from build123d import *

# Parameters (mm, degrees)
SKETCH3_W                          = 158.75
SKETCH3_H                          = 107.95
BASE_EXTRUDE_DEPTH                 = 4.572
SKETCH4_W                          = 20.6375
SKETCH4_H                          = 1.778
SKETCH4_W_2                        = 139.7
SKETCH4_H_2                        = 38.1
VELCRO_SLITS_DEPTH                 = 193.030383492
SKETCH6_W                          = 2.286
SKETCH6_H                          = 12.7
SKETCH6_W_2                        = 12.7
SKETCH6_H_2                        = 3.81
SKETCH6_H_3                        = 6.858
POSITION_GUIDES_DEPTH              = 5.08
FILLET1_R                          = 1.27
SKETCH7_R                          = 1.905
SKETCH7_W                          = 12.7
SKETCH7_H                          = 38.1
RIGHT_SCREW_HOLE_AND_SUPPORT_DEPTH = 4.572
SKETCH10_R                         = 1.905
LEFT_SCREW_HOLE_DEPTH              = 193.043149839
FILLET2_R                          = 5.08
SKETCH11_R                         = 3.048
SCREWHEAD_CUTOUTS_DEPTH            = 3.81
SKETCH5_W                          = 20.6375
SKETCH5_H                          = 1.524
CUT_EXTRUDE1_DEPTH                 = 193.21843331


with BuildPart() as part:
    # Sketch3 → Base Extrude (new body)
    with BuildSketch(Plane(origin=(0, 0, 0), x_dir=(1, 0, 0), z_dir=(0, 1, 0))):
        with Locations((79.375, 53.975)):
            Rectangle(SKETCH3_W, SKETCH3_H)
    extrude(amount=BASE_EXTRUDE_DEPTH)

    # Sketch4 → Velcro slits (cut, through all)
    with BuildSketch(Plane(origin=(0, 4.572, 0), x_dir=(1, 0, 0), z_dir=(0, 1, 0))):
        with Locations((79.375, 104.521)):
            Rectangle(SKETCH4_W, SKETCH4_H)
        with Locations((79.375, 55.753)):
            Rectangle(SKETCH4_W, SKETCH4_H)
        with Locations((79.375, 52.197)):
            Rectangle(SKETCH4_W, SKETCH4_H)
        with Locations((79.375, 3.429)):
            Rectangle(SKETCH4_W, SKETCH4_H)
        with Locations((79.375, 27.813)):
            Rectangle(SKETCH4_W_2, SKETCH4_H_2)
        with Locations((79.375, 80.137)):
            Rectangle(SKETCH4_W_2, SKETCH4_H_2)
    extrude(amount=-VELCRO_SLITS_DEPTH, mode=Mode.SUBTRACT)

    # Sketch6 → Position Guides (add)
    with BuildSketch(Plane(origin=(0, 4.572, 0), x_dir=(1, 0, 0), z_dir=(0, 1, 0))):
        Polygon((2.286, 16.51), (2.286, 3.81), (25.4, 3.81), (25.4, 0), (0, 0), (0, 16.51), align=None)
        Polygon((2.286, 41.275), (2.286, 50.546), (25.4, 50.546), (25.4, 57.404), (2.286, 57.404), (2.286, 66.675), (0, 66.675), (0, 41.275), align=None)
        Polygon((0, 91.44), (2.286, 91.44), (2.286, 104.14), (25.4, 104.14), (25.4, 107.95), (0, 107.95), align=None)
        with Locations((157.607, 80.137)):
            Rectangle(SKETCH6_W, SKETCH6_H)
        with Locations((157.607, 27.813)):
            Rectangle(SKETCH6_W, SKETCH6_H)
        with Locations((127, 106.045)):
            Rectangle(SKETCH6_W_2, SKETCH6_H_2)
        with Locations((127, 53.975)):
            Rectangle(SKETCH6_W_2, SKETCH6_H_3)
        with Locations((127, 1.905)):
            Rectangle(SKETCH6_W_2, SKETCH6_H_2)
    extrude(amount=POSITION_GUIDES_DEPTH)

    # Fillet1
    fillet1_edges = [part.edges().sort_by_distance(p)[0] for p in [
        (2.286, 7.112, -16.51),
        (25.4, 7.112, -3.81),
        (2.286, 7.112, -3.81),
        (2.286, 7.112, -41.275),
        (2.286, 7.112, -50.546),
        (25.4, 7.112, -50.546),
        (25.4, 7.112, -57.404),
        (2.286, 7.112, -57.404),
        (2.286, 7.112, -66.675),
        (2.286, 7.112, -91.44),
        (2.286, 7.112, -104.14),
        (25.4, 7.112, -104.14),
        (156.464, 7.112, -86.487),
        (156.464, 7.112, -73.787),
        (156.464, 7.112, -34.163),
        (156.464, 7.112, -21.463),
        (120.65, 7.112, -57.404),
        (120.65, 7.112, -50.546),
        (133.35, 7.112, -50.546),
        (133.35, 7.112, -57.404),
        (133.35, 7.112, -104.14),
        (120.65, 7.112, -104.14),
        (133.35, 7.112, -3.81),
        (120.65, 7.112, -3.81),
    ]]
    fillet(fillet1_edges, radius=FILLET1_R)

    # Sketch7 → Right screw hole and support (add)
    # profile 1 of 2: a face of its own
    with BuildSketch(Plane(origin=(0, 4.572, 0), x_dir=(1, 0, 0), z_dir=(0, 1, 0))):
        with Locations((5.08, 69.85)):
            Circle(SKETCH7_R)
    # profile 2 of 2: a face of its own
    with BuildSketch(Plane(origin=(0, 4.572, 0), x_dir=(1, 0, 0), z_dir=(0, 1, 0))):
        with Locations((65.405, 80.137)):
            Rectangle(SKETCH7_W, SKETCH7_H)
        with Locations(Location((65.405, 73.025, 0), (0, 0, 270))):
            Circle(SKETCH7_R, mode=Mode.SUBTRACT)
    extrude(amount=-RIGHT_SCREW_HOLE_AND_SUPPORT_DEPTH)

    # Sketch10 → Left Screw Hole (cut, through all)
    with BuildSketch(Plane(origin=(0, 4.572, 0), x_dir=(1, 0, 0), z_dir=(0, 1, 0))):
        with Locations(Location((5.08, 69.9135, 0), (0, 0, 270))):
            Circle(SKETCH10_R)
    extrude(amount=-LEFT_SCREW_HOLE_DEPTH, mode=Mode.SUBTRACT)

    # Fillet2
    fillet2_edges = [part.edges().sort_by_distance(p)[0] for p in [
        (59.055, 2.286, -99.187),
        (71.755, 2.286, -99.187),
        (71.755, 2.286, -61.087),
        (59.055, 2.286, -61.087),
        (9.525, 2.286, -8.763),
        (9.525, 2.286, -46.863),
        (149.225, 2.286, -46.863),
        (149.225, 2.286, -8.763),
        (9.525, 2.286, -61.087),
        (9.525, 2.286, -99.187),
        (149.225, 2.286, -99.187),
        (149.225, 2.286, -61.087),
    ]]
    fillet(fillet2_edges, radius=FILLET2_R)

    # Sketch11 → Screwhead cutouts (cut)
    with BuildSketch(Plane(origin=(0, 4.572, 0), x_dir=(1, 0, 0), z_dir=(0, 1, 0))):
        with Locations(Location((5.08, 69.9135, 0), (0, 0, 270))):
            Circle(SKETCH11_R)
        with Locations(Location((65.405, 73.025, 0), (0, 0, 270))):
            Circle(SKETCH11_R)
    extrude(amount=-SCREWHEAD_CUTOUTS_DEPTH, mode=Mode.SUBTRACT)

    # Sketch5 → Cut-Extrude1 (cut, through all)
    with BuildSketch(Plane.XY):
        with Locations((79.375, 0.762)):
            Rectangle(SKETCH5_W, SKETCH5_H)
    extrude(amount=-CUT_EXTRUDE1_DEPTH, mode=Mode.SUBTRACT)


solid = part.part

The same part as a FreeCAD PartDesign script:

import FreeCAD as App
import Part
import Sketcher

V = App.Vector
Q = App.Units.Quantity


def edges_at(feature, points):
    """Names of the edges that pass closest to the given points."""
    edges = feature.Shape.Edges
    near = lambda p: min(range(len(edges)), key=lambda i: edges[i].distToShape(Part.Vertex(*p))[0])
    return sorted({f"Edge{near(p) + 1}" for p in points})

doc = App.newDocument("Part")
body = doc.addObject("PartDesign::Body", "Body")

sketch1 = doc.addObject("Sketcher::SketchObject", "Sketch")
body.addObject(sketch1)
sketch1.AttachmentSupport = (doc.XZ_Plane, [""])
sketch1.MapMode = "FlatFace"
sketch1.addGeometry([
    Part.LineSegment(V(0, -108, 0), V(0, 0, 0)),
    Part.LineSegment(V(0, 0, 0), V(159, 0, 0)),
    Part.LineSegment(V(159, 0, 0), V(159, -108, 0)),
    Part.LineSegment(V(159, -108, 0), V(0, -108, 0)),
], False)
sketch1.addConstraint([
    Sketcher.Constraint("Coincident", 0, 2, 1, 1),
    Sketcher.Constraint("Coincident", 1, 2, 2, 1),
    Sketcher.Constraint("Coincident", 2, 2, 3, 1),
    Sketcher.Constraint("Coincident", 3, 2, 0, 1),
    Sketcher.Constraint("Vertical", 0),
    Sketcher.Constraint("Horizontal", 1),
    Sketcher.Constraint("Vertical", 2),
    Sketcher.Constraint("Horizontal", 3),
    Sketcher.Constraint("Coincident", 0, 2, -1, 1),
    Sketcher.Constraint("DistanceX", 1, 1, 1, 2, Q("6.25 in")),
    Sketcher.Constraint("DistanceY", 0, 1, 0, 2, Q("4.25 in")),
])
pad1 = doc.addObject("PartDesign::Pad", "Pad")
body.addObject(pad1)
pad1.Profile = sketch1
pad1.Length = Q("0.18 in")
pad1.Reversed = True

sketch2 = doc.addObject("Sketcher::SketchObject", "Sketch001")
body.addObject(sketch2)
sketch2.AttachmentSupport = (doc.XZ_Plane, [""])
sketch2.MapMode = "FlatFace"
sketch2.AttachmentOffset = App.Placement(V(0, 0, -0.18 * 25.4), App.Rotation())
sketch2.addGeometry([
    Part.LineSegment(V(69.1, -105.4, 0), V(69.1, -103.6, 0)),
    Part.LineSegment(V(69.1, -103.6, 0), V(89.7, -103.6, 0)),
    Part.LineSegment(V(89.7, -103.6, 0), V(89.7, -105.4, 0)),
    Part.LineSegment(V(89.7, -105.4, 0), V(69.1, -105.4, 0)),
    Part.LineSegment(V(69.1, -56.6, 0), V(69.1, -54.9, 0)),
    Part.LineSegment(V(69.1, -54.9, 0), V(89.7, -54.9, 0)),
    Part.LineSegment(V(89.7, -54.9, 0), V(89.7, -56.6, 0)),
    Part.LineSegment(V(89.7, -56.6, 0), V(69.1, -56.6, 0)),
    Part.LineSegment(V(69.1, -53.1, 0), V(69.1, -51.3, 0)),
    Part.LineSegment(V(69.1, -51.3, 0), V(89.7, -51.3, 0)),
    Part.LineSegment(V(89.7, -51.3, 0), V(89.7, -53.1, 0)),
    Part.LineSegment(V(89.7, -53.1, 0), V(69.1, -53.1, 0)),
    Part.LineSegment(V(69.1, -4.3, 0), V(69.1, -2.5, 0)),
    Part.LineSegment(V(69.1, -2.5, 0), V(89.7, -2.5, 0)),
    Part.LineSegment(V(89.7, -2.5, 0), V(89.7, -4.3, 0)),
    Part.LineSegment(V(89.7, -4.3, 0), V(69.1, -4.3, 0)),
    Part.LineSegment(V(9.5, -46.9, 0), V(9.5, -8.8, 0)),
    Part.LineSegment(V(9.5, -8.8, 0), V(149.2, -8.8, 0)),
    Part.LineSegment(V(149.2, -8.8, 0), V(149.2, -46.9, 0)),
    Part.LineSegment(V(149.2, -46.9, 0), V(9.5, -46.9, 0)),
    Part.LineSegment(V(9.5, -99.2, 0), V(9.5, -61.1, 0)),
    Part.LineSegment(V(9.5, -61.1, 0), V(149.2, -61.1, 0)),
    Part.LineSegment(V(149.2, -61.1, 0), V(149.2, -99.2, 0)),
    Part.LineSegment(V(149.2, -99.2, 0), V(9.5, -99.2, 0)),
], False)
sketch2.addConstraint([
    Sketcher.Constraint("Coincident", 0, 2, 1, 1),
    Sketcher.Constraint("Coincident", 1, 2, 2, 1),
    Sketcher.Constraint("Coincident", 2, 2, 3, 1),
    Sketcher.Constraint("Coincident", 3, 2, 0, 1),
    Sketcher.Constraint("Coincident", 4, 2, 5, 1),
    Sketcher.Constraint("Coincident", 5, 2, 6, 1),
    Sketcher.Constraint("Coincident", 6, 2, 7, 1),
    Sketcher.Constraint("Coincident", 7, 2, 4, 1),
    Sketcher.Constraint("Coincident", 8, 2, 9, 1),
    Sketcher.Constraint("Coincident", 9, 2, 10, 1),
    Sketcher.Constraint("Coincident", 10, 2, 11, 1),
    Sketcher.Constraint("Coincident", 11, 2, 8, 1),
    Sketcher.Constraint("Coincident", 12, 2, 13, 1),
    Sketcher.Constraint("Coincident", 13, 2, 14, 1),
    Sketcher.Constraint("Coincident", 14, 2, 15, 1),
    Sketcher.Constraint("Coincident", 15, 2, 12, 1),
    Sketcher.Constraint("Coincident", 16, 2, 17, 1),
    Sketcher.Constraint("Coincident", 17, 2, 18, 1),
    Sketcher.Constraint("Coincident", 18, 2, 19, 1),
    Sketcher.Constraint("Coincident", 19, 2, 16, 1),
    Sketcher.Constraint("Coincident", 20, 2, 21, 1),
    Sketcher.Constraint("Coincident", 21, 2, 22, 1),
    Sketcher.Constraint("Coincident", 22, 2, 23, 1),
    Sketcher.Constraint("Coincident", 23, 2, 20, 1),
    Sketcher.Constraint("Vertical", 0),
    Sketcher.Constraint("Horizontal", 1),
    Sketcher.Constraint("Vertical", 2),
    Sketcher.Constraint("Horizontal", 3),
    Sketcher.Constraint("Vertical", 4),
    Sketcher.Constraint("Horizontal", 5),
    Sketcher.Constraint("Vertical", 6),
    Sketcher.Constraint("Horizontal", 7),
    Sketcher.Constraint("Vertical", 8),
    Sketcher.Constraint("Horizontal", 9),
    Sketcher.Constraint("Vertical", 10),
    Sketcher.Constraint("Horizontal", 11),
    Sketcher.Constraint("Vertical", 12),
    Sketcher.Constraint("Horizontal", 13),
    Sketcher.Constraint("Vertical", 14),
    Sketcher.Constraint("Horizontal", 15),
    Sketcher.Constraint("Vertical", 16),
    Sketcher.Constraint("Horizontal", 17),
    Sketcher.Constraint("Vertical", 18),
    Sketcher.Constraint("Horizontal", 19),
    Sketcher.Constraint("Vertical", 20),
    Sketcher.Constraint("Horizontal", 21),
    Sketcher.Constraint("Vertical", 22),
    Sketcher.Constraint("Horizontal", 23),
    Sketcher.Constraint("Vertical", 3, 2, 4, 2),
    Sketcher.Constraint("Vertical", 2, 2, 5, 2),
    Sketcher.Constraint("Vertical", 7, 2, 8, 2),
    Sketcher.Constraint("Vertical", 6, 2, 9, 2),
    Sketcher.Constraint("Vertical", 11, 2, 12, 2),
    Sketcher.Constraint("Vertical", 10, 2, 13, 2),
    Sketcher.Constraint("Vertical", 19, 2, 20, 2),
    Sketcher.Constraint("Vertical", 18, 2, 21, 2),
    Sketcher.Constraint("Equal", 2, 4),
    Sketcher.Constraint("Equal", 6, 8),
    Sketcher.Constraint("Equal", 10, 12),
    Sketcher.Constraint("Equal", 18, 20),
    Sketcher.Constraint("DistanceX", 17, 1, 17, 2, Q("5.5 in")),
    Sketcher.Constraint("DistanceY", 16, 1, 16, 2, Q("1.5 in")),
    Sketcher.Constraint("DistanceY", 0, 1, 0, 2, Q("0.07 in")),
    Sketcher.Constraint("DistanceY", 12, 2, -1, 1, Q("0.1 in")),
    Sketcher.Constraint("DistanceX", 1, 1, 1, 2, Q("0.8125 in")),
    Sketcher.Constraint("DistanceY", 0, 2, -1, 1, Q("4.08 in")),
    Sketcher.Constraint("DistanceY", 4, 2, -1, 1, Q("2.16 in")),
    Sketcher.Constraint("DistanceY", 8, 2, -1, 1, Q("2.02 in")),
    Sketcher.Constraint("DistanceY", 20, 2, 19, 2, Q("0.56 in")),
    Sketcher.Constraint("DistanceX", -1, 1, 0, 2, Q("2.71875 in")),
    Sketcher.Constraint("DistanceX", -1, 1, 16, 2, Q("0.375 in")),
    Sketcher.Constraint("DistanceY", 16, 2, -1, 1, Q("0.345 in")),
])
pocket1 = doc.addObject("PartDesign::Pocket", "Pocket")
body.addObject(pocket1)
pocket1.Profile = sketch2
pocket1.Type = "ThroughAll"
pocket1.Reversed = True

sketch3 = doc.addObject("Sketcher::SketchObject", "Sketch002")
body.addObject(sketch3)
sketch3.AttachmentSupport = (doc.XZ_Plane, [""])
sketch3.MapMode = "FlatFace"
sketch3.AttachmentOffset = App.Placement(V(0, 0, -0.18 * 25.4), App.Rotation())
sketch3.addGeometry([
    Part.LineSegment(V(2.3, -3.8, 0), V(2.3, -16.5, 0)),
    Part.LineSegment(V(2.3, -16.5, 0), V(0, -16.5, 0)),
    Part.LineSegment(V(0, -16.5, 0), V(0, 0, 0)),
    Part.LineSegment(V(0, 0, 0), V(25.4, 0, 0)),
    Part.LineSegment(V(25.4, 0, 0), V(25.4, -3.8, 0)),
    Part.LineSegment(V(25.4, -3.8, 0), V(2.3, -3.8, 0)),
    Part.LineSegment(V(2.3, -41.3, 0), V(2.3, -50.5, 0)),
    Part.LineSegment(V(2.3, -50.5, 0), V(25.4, -50.5, 0)),
    Part.LineSegment(V(25.4, -50.5, 0), V(25.4, -57.4, 0)),
    Part.LineSegment(V(25.4, -57.4, 0), V(2.3, -57.4, 0)),
    Part.LineSegment(V(2.3, -57.4, 0), V(2.3, -66.7, 0)),
    Part.LineSegment(V(2.3, -66.7, 0), V(0, -66.7, 0)),
    Part.LineSegment(V(0, -66.7, 0), V(0, -41.3, 0)),
    Part.LineSegment(V(0, -41.3, 0), V(2.3, -41.3, 0)),
    Part.LineSegment(V(0, -91.4, 0), V(2.3, -91.4, 0)),
    Part.LineSegment(V(2.3, -91.4, 0), V(2.3, -104.1, 0)),
    Part.LineSegment(V(2.3, -104.1, 0), V(25.4, -104.1, 0)),
    Part.LineSegment(V(25.4, -104.1, 0), V(25.4, -108, 0)),
    Part.LineSegment(V(25.4, -108, 0), V(0, -108, 0)),
    Part.LineSegment(V(0, -108, 0), V(0, -91.4, 0)),
    Part.LineSegment(V(156.5, -86.5, 0), V(156.5, -73.8, 0)),
    Part.LineSegment(V(156.5, -73.8, 0), V(158.8, -73.8, 0)),
    Part.LineSegment(V(158.8, -73.8, 0), V(158.8, -86.5, 0)),
    Part.LineSegment(V(158.8, -86.5, 0), V(156.5, -86.5, 0)),
    Part.LineSegment(V(156.5, -34.2, 0), V(156.5, -21.5, 0)),
    Part.LineSegment(V(156.5, -21.5, 0), V(158.8, -21.5, 0)),
    Part.LineSegment(V(158.8, -21.5, 0), V(158.8, -34.2, 0)),
    Part.LineSegment(V(158.8, -34.2, 0), V(156.5, -34.2, 0)),
    Part.LineSegment(V(120.7, -108, 0), V(120.7, -104.1, 0)),
    Part.LineSegment(V(120.7, -104.1, 0), V(133.3, -104.1, 0)),
    Part.LineSegment(V(133.3, -104.1, 0), V(133.3, -108, 0)),
    Part.LineSegment(V(133.3, -108, 0), V(120.7, -108, 0)),
    Part.LineSegment(V(120.7, -57.4, 0), V(120.7, -50.5, 0)),
    Part.LineSegment(V(120.7, -50.5, 0), V(133.3, -50.5, 0)),
    Part.LineSegment(V(133.3, -50.5, 0), V(133.3, -57.4, 0)),
    Part.LineSegment(V(133.3, -57.4, 0), V(120.7, -57.4, 0)),
    Part.LineSegment(V(120.7, -3.8, 0), V(120.7, 0, 0)),
    Part.LineSegment(V(120.7, 0, 0), V(133.3, 0, 0)),
    Part.LineSegment(V(133.3, 0, 0), V(133.3, -3.8, 0)),
    Part.LineSegment(V(133.3, -3.8, 0), V(120.7, -3.8, 0)),
], False)
sketch3.addConstraint([
    Sketcher.Constraint("Coincident", 0, 2, 1, 1),
    Sketcher.Constraint("Coincident", 1, 2, 2, 1),
    Sketcher.Constraint("Coincident", 2, 2, 3, 1),
    Sketcher.Constraint("Coincident", 3, 2, 4, 1),
    Sketcher.Constraint("Coincident", 4, 2, 5, 1),
    Sketcher.Constraint("Coincident", 5, 2, 0, 1),
    Sketcher.Constraint("Coincident", 6, 2, 7, 1),
    Sketcher.Constraint("Coincident", 7, 2, 8, 1),
    Sketcher.Constraint("Coincident", 8, 2, 9, 1),
    Sketcher.Constraint("Coincident", 9, 2, 10, 1),
    Sketcher.Constraint("Coincident", 10, 2, 11, 1),
    Sketcher.Constraint("Coincident", 11, 2, 12, 1),
    Sketcher.Constraint("Coincident", 12, 2, 13, 1),
    Sketcher.Constraint("Coincident", 13, 2, 6, 1),
    Sketcher.Constraint("Coincident", 14, 2, 15, 1),
    Sketcher.Constraint("Coincident", 15, 2, 16, 1),
    Sketcher.Constraint("Coincident", 16, 2, 17, 1),
    Sketcher.Constraint("Coincident", 17, 2, 18, 1),
    Sketcher.Constraint("Coincident", 18, 2, 19, 1),
    Sketcher.Constraint("Coincident", 19, 2, 14, 1),
    Sketcher.Constraint("Coincident", 20, 2, 21, 1),
    Sketcher.Constraint("Coincident", 21, 2, 22, 1),
    Sketcher.Constraint("Coincident", 22, 2, 23, 1),
    Sketcher.Constraint("Coincident", 23, 2, 20, 1),
    Sketcher.Constraint("Coincident", 24, 2, 25, 1),
    Sketcher.Constraint("Coincident", 25, 2, 26, 1),
    Sketcher.Constraint("Coincident", 26, 2, 27, 1),
    Sketcher.Constraint("Coincident", 27, 2, 24, 1),
    Sketcher.Constraint("Coincident", 28, 2, 29, 1),
    Sketcher.Constraint("Coincident", 29, 2, 30, 1),
    Sketcher.Constraint("Coincident", 30, 2, 31, 1),
    Sketcher.Constraint("Coincident", 31, 2, 28, 1),
    Sketcher.Constraint("Coincident", 32, 2, 33, 1),
    Sketcher.Constraint("Coincident", 33, 2, 34, 1),
    Sketcher.Constraint("Coincident", 34, 2, 35, 1),
    Sketcher.Constraint("Coincident", 35, 2, 32, 1),
    Sketcher.Constraint("Coincident", 36, 2, 37, 1),
    Sketcher.Constraint("Coincident", 37, 2, 38, 1),
    Sketcher.Constraint("Coincident", 38, 2, 39, 1),
    Sketcher.Constraint("Coincident", 39, 2, 36, 1),
    Sketcher.Constraint("Vertical", 0),
    Sketcher.Constraint("Horizontal", 1),
    Sketcher.Constraint("Vertical", 2),
    Sketcher.Constraint("Horizontal", 3),
    Sketcher.Constraint("Vertical", 4),
    Sketcher.Constraint("Horizontal", 5),
    Sketcher.Constraint("Vertical", 6),
    Sketcher.Constraint("Horizontal", 7),
    Sketcher.Constraint("Vertical", 8),
    Sketcher.Constraint("Horizontal", 9),
    Sketcher.Constraint("Vertical", 10),
    Sketcher.Constraint("Horizontal", 11),
    Sketcher.Constraint("Vertical", 12),
    Sketcher.Constraint("Horizontal", 13),
    Sketcher.Constraint("Horizontal", 14),
    Sketcher.Constraint("Vertical", 15),
    Sketcher.Constraint("Horizontal", 16),
    Sketcher.Constraint("Vertical", 17),
    Sketcher.Constraint("Horizontal", 18),
    Sketcher.Constraint("Vertical", 19),
    Sketcher.Constraint("Vertical", 20),
    Sketcher.Constraint("Horizontal", 21),
    Sketcher.Constraint("Vertical", 22),
    Sketcher.Constraint("Horizontal", 23),
    Sketcher.Constraint("Vertical", 24),
    Sketcher.Constraint("Horizontal", 25),
    Sketcher.Constraint("Vertical", 26),
    Sketcher.Constraint("Horizontal", 27),
    Sketcher.Constraint("Vertical", 28),
    Sketcher.Constraint("Horizontal", 29),
    Sketcher.Constraint("Vertical", 30),
    Sketcher.Constraint("Horizontal", 31),
    Sketcher.Constraint("Vertical", 32),
    Sketcher.Constraint("Horizontal", 33),
    Sketcher.Constraint("Vertical", 34),
    Sketcher.Constraint("Horizontal", 35),
    Sketcher.Constraint("Vertical", 36),
    Sketcher.Constraint("Horizontal", 37),
    Sketcher.Constraint("Vertical", 38),
    Sketcher.Constraint("Horizontal", 39),
    Sketcher.Constraint("Coincident", 2, 2, -1, 1),
    Sketcher.Constraint("PointOnObject", 11, 2, -2),
    Sketcher.Constraint("PointOnObject", 18, 2, -2),
    Sketcher.Constraint("PointOnObject", 36, 2, -1),
    Sketcher.Constraint("Horizontal", 16, 2, 28, 2),
    Sketcher.Constraint("Horizontal", 18, 2, 30, 2),
    Sketcher.Constraint("Horizontal", 7, 2, 32, 2),
    Sketcher.Constraint("Horizontal", 9, 2, 34, 2),
    Sketcher.Constraint("Horizontal", 5, 2, 38, 2),
    Sketcher.Constraint("Vertical", 5, 2, 6, 2),
    Sketcher.Constraint("Vertical", 4, 2, 7, 2),
    Sketcher.Constraint("Vertical", 6, 2, 9, 2),
    Sketcher.Constraint("Vertical", 13, 2, 14, 2),
    Sketcher.Constraint("Vertical", 8, 2, 16, 2),
    Sketcher.Constraint("Vertical", 23, 2, 24, 2),
    Sketcher.Constraint("Vertical", 22, 2, 25, 2),
    Sketcher.Constraint("Vertical", 31, 2, 32, 2),
    Sketcher.Constraint("Vertical", 30, 2, 33, 2),
    Sketcher.Constraint("Vertical", 35, 2, 36, 2),
    Sketcher.Constraint("Vertical", 34, 2, 37, 2),
    Sketcher.Constraint("Equal", 14, 21),
    Sketcher.Constraint("Equal", 39, 0),
    Sketcher.Constraint("Equal", 6, 10),
    Sketcher.Constraint("Equal", 18, 12),
    Sketcher.Constraint("Equal", 0, 15),
    Sketcher.Constraint("Equal", 4, 17),
    Sketcher.Constraint("Equal", 15, 20),
    Sketcher.Constraint("Equal", 22, 24),
    Sketcher.Constraint("DistanceX", 3, 1, 3, 2, Q("1 in")),
    Sketcher.Constraint("DistanceX", 29, 1, 29, 2, Q("0.5 in")),
    Sketcher.Constraint("DistanceX", 29, 2, 22, 2, Q("1 in")),
    Sketcher.Constraint("DistanceX", 1, 2, 1, 1, Q("0.09 in")),
    Sketcher.Constraint("DistanceY", 2, 1, 2, 2, Q("0.65 in")),
    Sketcher.Constraint("DistanceY", 8, 2, 8, 1, Q("0.27 in")),
    Sketcher.Constraint("DistanceY", 14, 2, -1, 1, Q("3.6 in")),
    Sketcher.Constraint("DistanceY", 6, 2, -1, 1, Q("1.99 in")),
    Sketcher.Constraint("DistanceX", -1, 1, 20, 2, Q("6.16 in")),
    Sketcher.Constraint("DistanceY", 20, 2, 24, 2, Q("2.06 in")),
    Sketcher.Constraint("DistanceY", 20, 2, -1, 1, Q("2.905 in")),
])
pad2 = doc.addObject("PartDesign::Pad", "Pad001")
body.addObject(pad2)
pad2.Profile = sketch3
pad2.Length = Q("0.2 in")
pad2.Reversed = True
doc.recompute()

fillet = doc.addObject("PartDesign::Fillet", "Fillet")
body.addObject(fillet)
fillet.Base = (pad2, edges_at(pad2, [
    (2.286, 7.112, -16.51),
    (25.4, 7.112, -3.81),
    (2.286, 7.112, -3.81),
    (2.286, 7.112, -41.275),
    (2.286, 7.112, -50.546),
    (25.4, 7.112, -50.546),
    (25.4, 7.112, -57.404),
    (2.286, 7.112, -57.404),
    (2.286, 7.112, -66.675),
    (2.286, 7.112, -91.44),
    (2.286, 7.112, -104.14),
    (25.4, 7.112, -104.14),
    (156.464, 7.112, -86.487),
    (156.464, 7.112, -73.787),
    (156.464, 7.112, -34.163),
    (156.464, 7.112, -21.463),
    (120.65, 7.112, -57.404),
    (120.65, 7.112, -50.546),
    (133.35, 7.112, -50.546),
    (133.35, 7.112, -57.404),
    (133.35, 7.112, -104.14),
    (120.65, 7.112, -104.14),
    (133.35, 7.112, -3.81),
    (120.65, 7.112, -3.81),
]))
fillet.Radius = Q("0.05 in")

sketch4 = doc.addObject("Sketcher::SketchObject", "Sketch003")
body.addObject(sketch4)
sketch4.AttachmentSupport = (doc.XZ_Plane, [""])
sketch4.MapMode = "FlatFace"
sketch4.AttachmentOffset = App.Placement(V(0, 0, -0.18 * 25.4), App.Rotation())
sketch4.addGeometry([
    Part.Circle(V(5.1, -69.8, 0), V(0, 0, 1), 1.9),
    Part.LineSegment(V(59.1, -99.2, 0), V(59.1, -61.1, 0)),
    Part.LineSegment(V(59.1, -61.1, 0), V(71.8, -61.1, 0)),
    Part.LineSegment(V(71.8, -61.1, 0), V(71.8, -99.2, 0)),
    Part.LineSegment(V(71.8, -99.2, 0), V(59.1, -99.2, 0)),
    Part.Circle(V(65.4, -73, 0), V(0, 0, 1), 1.9),
], False)
sketch4.addConstraint([
    Sketcher.Constraint("Coincident", 1, 2, 2, 1),
    Sketcher.Constraint("Coincident", 2, 2, 3, 1),
    Sketcher.Constraint("Coincident", 3, 2, 4, 1),
    Sketcher.Constraint("Coincident", 4, 2, 1, 1),
    Sketcher.Constraint("Vertical", 1),
    Sketcher.Constraint("Horizontal", 2),
    Sketcher.Constraint("Vertical", 3),
    Sketcher.Constraint("Horizontal", 4),
    Sketcher.Constraint("Equal", 0, 5),
    Sketcher.Constraint("Diameter", 0, Q("0.15 in")),
    Sketcher.Constraint("DistanceX", 2, 1, 2, 2, Q("0.5 in")),
    Sketcher.Constraint("DistanceY", 1, 1, 1, 2, Q("1.5 in")),
    Sketcher.Constraint("DistanceX", -1, 1, 0, 3, Q("0.2 in")),
    Sketcher.Constraint("DistanceY", 0, 3, -1, 1, Q("2.75 in")),
    Sketcher.Constraint("DistanceX", 1, 2, 5, 3, Q("0.25 in")),
    Sketcher.Constraint("DistanceY", 5, 3, 1, 2, Q("0.47 in")),
    Sketcher.Constraint("DistanceX", -1, 1, 5, 3, Q("2.575 in")),
    Sketcher.Constraint("DistanceY", 5, 3, -1, 1, Q("2.875 in")),
])
pad3 = doc.addObject("PartDesign::Pad", "Pad002")
body.addObject(pad3)
pad3.Profile = sketch4
pad3.Length = Q("0.18 in")

sketch5 = doc.addObject("Sketcher::SketchObject", "Sketch004")
body.addObject(sketch5)
sketch5.AttachmentSupport = (doc.XZ_Plane, [""])
sketch5.MapMode = "FlatFace"
sketch5.AttachmentOffset = App.Placement(V(0, 0, -0.18 * 25.4), App.Rotation())
sketch5.addGeometry(Part.Circle(V(5.1, -69.9, 0), V(0, 0, 1), 1.9), False)
sketch5.addConstraint([
    Sketcher.Constraint("Diameter", 0, Q("0.15 in")),
    Sketcher.Constraint("DistanceX", -1, 1, 0, 3, Q("0.2 in")),
    Sketcher.Constraint("DistanceY", 0, 3, -1, 1, Q("2.7525 in")),
])
pocket2 = doc.addObject("PartDesign::Pocket", "Pocket001")
body.addObject(pocket2)
pocket2.Profile = sketch5
pocket2.Type = "ThroughAll"
pocket2.Reversed = True
doc.recompute()

fillet2 = doc.addObject("PartDesign::Fillet", "Fillet001")
body.addObject(fillet2)
fillet2.Base = (pocket2, edges_at(pocket2, [
    (59.055, 2.286, -99.187),
    (71.755, 2.286, -99.187),
    (71.755, 2.286, -61.087),
    (59.055, 2.286, -61.087),
    (9.525, 2.286, -8.763),
    (9.525, 2.286, -46.863),
    (149.225, 2.286, -46.863),
    (149.225, 2.286, -8.763),
    (9.525, 2.286, -61.087),
    (9.525, 2.286, -99.187),
    (149.225, 2.286, -99.187),
    (149.225, 2.286, -61.087),
]))
fillet2.Radius = Q("0.2 in")

sketch6 = doc.addObject("Sketcher::SketchObject", "Sketch005")
body.addObject(sketch6)
sketch6.AttachmentSupport = (doc.XZ_Plane, [""])
sketch6.MapMode = "FlatFace"
sketch6.AttachmentOffset = App.Placement(V(0, 0, -0.18 * 25.4), App.Rotation())
sketch6.addGeometry([
    Part.Circle(V(5.1, -69.9, 0), V(0, 0, 1), 3),
    Part.Circle(V(65.4, -73, 0), V(0, 0, 1), 3),
], False)
sketch6.addConstraint([
    Sketcher.Constraint("Equal", 0, 1),
    Sketcher.Constraint("Diameter", 0, Q("0.24 in")),
    Sketcher.Constraint("DistanceX", -1, 1, 0, 3, Q("0.2 in")),
    Sketcher.Constraint("DistanceX", -1, 1, 1, 3, Q("2.575 in")),
    Sketcher.Constraint("DistanceY", 1, 3, -1, 1, Q("2.875 in")),
    Sketcher.Constraint("DistanceY", 0, 3, -1, 1, Q("2.7525 in")),
])
pocket3 = doc.addObject("PartDesign::Pocket", "Pocket002")
body.addObject(pocket3)
pocket3.Profile = sketch6
pocket3.Length = Q("0.15 in")
pocket3.Reversed = True

sketch7 = doc.addObject("Sketcher::SketchObject", "Sketch006")
body.addObject(sketch7)
sketch7.AttachmentSupport = (doc.XY_Plane, [""])
sketch7.MapMode = "FlatFace"
sketch7.addGeometry([
    Part.LineSegment(V(69.1, 1.5, 0), V(69.1, 0, 0)),
    Part.LineSegment(V(69.1, 0, 0), V(89.7, 0, 0)),
    Part.LineSegment(V(89.7, 0, 0), V(89.7, 1.5, 0)),
    Part.LineSegment(V(89.7, 1.5, 0), V(69.1, 1.5, 0)),
], False)
sketch7.addConstraint([
    Sketcher.Constraint("Coincident", 0, 2, 1, 1),
    Sketcher.Constraint("Coincident", 1, 2, 2, 1),
    Sketcher.Constraint("Coincident", 2, 2, 3, 1),
    Sketcher.Constraint("Coincident", 3, 2, 0, 1),
    Sketcher.Constraint("Vertical", 0),
    Sketcher.Constraint("Horizontal", 1),
    Sketcher.Constraint("Vertical", 2),
    Sketcher.Constraint("Horizontal", 3),
    Sketcher.Constraint("PointOnObject", 0, 2, -1),
    Sketcher.Constraint("DistanceY", 0, 2, 0, 1, Q("0.06 in")),
    Sketcher.Constraint("DistanceX", 1, 1, 1, 2, Q("0.8125 in")),
    Sketcher.Constraint("DistanceX", -1, 1, 0, 2, Q("2.71875 in")),
])
pocket4 = doc.addObject("PartDesign::Pocket", "Pocket003")
body.addObject(pocket4)
pocket4.Profile = sketch7
pocket4.Type = "ThroughAll"

doc.recompute()
